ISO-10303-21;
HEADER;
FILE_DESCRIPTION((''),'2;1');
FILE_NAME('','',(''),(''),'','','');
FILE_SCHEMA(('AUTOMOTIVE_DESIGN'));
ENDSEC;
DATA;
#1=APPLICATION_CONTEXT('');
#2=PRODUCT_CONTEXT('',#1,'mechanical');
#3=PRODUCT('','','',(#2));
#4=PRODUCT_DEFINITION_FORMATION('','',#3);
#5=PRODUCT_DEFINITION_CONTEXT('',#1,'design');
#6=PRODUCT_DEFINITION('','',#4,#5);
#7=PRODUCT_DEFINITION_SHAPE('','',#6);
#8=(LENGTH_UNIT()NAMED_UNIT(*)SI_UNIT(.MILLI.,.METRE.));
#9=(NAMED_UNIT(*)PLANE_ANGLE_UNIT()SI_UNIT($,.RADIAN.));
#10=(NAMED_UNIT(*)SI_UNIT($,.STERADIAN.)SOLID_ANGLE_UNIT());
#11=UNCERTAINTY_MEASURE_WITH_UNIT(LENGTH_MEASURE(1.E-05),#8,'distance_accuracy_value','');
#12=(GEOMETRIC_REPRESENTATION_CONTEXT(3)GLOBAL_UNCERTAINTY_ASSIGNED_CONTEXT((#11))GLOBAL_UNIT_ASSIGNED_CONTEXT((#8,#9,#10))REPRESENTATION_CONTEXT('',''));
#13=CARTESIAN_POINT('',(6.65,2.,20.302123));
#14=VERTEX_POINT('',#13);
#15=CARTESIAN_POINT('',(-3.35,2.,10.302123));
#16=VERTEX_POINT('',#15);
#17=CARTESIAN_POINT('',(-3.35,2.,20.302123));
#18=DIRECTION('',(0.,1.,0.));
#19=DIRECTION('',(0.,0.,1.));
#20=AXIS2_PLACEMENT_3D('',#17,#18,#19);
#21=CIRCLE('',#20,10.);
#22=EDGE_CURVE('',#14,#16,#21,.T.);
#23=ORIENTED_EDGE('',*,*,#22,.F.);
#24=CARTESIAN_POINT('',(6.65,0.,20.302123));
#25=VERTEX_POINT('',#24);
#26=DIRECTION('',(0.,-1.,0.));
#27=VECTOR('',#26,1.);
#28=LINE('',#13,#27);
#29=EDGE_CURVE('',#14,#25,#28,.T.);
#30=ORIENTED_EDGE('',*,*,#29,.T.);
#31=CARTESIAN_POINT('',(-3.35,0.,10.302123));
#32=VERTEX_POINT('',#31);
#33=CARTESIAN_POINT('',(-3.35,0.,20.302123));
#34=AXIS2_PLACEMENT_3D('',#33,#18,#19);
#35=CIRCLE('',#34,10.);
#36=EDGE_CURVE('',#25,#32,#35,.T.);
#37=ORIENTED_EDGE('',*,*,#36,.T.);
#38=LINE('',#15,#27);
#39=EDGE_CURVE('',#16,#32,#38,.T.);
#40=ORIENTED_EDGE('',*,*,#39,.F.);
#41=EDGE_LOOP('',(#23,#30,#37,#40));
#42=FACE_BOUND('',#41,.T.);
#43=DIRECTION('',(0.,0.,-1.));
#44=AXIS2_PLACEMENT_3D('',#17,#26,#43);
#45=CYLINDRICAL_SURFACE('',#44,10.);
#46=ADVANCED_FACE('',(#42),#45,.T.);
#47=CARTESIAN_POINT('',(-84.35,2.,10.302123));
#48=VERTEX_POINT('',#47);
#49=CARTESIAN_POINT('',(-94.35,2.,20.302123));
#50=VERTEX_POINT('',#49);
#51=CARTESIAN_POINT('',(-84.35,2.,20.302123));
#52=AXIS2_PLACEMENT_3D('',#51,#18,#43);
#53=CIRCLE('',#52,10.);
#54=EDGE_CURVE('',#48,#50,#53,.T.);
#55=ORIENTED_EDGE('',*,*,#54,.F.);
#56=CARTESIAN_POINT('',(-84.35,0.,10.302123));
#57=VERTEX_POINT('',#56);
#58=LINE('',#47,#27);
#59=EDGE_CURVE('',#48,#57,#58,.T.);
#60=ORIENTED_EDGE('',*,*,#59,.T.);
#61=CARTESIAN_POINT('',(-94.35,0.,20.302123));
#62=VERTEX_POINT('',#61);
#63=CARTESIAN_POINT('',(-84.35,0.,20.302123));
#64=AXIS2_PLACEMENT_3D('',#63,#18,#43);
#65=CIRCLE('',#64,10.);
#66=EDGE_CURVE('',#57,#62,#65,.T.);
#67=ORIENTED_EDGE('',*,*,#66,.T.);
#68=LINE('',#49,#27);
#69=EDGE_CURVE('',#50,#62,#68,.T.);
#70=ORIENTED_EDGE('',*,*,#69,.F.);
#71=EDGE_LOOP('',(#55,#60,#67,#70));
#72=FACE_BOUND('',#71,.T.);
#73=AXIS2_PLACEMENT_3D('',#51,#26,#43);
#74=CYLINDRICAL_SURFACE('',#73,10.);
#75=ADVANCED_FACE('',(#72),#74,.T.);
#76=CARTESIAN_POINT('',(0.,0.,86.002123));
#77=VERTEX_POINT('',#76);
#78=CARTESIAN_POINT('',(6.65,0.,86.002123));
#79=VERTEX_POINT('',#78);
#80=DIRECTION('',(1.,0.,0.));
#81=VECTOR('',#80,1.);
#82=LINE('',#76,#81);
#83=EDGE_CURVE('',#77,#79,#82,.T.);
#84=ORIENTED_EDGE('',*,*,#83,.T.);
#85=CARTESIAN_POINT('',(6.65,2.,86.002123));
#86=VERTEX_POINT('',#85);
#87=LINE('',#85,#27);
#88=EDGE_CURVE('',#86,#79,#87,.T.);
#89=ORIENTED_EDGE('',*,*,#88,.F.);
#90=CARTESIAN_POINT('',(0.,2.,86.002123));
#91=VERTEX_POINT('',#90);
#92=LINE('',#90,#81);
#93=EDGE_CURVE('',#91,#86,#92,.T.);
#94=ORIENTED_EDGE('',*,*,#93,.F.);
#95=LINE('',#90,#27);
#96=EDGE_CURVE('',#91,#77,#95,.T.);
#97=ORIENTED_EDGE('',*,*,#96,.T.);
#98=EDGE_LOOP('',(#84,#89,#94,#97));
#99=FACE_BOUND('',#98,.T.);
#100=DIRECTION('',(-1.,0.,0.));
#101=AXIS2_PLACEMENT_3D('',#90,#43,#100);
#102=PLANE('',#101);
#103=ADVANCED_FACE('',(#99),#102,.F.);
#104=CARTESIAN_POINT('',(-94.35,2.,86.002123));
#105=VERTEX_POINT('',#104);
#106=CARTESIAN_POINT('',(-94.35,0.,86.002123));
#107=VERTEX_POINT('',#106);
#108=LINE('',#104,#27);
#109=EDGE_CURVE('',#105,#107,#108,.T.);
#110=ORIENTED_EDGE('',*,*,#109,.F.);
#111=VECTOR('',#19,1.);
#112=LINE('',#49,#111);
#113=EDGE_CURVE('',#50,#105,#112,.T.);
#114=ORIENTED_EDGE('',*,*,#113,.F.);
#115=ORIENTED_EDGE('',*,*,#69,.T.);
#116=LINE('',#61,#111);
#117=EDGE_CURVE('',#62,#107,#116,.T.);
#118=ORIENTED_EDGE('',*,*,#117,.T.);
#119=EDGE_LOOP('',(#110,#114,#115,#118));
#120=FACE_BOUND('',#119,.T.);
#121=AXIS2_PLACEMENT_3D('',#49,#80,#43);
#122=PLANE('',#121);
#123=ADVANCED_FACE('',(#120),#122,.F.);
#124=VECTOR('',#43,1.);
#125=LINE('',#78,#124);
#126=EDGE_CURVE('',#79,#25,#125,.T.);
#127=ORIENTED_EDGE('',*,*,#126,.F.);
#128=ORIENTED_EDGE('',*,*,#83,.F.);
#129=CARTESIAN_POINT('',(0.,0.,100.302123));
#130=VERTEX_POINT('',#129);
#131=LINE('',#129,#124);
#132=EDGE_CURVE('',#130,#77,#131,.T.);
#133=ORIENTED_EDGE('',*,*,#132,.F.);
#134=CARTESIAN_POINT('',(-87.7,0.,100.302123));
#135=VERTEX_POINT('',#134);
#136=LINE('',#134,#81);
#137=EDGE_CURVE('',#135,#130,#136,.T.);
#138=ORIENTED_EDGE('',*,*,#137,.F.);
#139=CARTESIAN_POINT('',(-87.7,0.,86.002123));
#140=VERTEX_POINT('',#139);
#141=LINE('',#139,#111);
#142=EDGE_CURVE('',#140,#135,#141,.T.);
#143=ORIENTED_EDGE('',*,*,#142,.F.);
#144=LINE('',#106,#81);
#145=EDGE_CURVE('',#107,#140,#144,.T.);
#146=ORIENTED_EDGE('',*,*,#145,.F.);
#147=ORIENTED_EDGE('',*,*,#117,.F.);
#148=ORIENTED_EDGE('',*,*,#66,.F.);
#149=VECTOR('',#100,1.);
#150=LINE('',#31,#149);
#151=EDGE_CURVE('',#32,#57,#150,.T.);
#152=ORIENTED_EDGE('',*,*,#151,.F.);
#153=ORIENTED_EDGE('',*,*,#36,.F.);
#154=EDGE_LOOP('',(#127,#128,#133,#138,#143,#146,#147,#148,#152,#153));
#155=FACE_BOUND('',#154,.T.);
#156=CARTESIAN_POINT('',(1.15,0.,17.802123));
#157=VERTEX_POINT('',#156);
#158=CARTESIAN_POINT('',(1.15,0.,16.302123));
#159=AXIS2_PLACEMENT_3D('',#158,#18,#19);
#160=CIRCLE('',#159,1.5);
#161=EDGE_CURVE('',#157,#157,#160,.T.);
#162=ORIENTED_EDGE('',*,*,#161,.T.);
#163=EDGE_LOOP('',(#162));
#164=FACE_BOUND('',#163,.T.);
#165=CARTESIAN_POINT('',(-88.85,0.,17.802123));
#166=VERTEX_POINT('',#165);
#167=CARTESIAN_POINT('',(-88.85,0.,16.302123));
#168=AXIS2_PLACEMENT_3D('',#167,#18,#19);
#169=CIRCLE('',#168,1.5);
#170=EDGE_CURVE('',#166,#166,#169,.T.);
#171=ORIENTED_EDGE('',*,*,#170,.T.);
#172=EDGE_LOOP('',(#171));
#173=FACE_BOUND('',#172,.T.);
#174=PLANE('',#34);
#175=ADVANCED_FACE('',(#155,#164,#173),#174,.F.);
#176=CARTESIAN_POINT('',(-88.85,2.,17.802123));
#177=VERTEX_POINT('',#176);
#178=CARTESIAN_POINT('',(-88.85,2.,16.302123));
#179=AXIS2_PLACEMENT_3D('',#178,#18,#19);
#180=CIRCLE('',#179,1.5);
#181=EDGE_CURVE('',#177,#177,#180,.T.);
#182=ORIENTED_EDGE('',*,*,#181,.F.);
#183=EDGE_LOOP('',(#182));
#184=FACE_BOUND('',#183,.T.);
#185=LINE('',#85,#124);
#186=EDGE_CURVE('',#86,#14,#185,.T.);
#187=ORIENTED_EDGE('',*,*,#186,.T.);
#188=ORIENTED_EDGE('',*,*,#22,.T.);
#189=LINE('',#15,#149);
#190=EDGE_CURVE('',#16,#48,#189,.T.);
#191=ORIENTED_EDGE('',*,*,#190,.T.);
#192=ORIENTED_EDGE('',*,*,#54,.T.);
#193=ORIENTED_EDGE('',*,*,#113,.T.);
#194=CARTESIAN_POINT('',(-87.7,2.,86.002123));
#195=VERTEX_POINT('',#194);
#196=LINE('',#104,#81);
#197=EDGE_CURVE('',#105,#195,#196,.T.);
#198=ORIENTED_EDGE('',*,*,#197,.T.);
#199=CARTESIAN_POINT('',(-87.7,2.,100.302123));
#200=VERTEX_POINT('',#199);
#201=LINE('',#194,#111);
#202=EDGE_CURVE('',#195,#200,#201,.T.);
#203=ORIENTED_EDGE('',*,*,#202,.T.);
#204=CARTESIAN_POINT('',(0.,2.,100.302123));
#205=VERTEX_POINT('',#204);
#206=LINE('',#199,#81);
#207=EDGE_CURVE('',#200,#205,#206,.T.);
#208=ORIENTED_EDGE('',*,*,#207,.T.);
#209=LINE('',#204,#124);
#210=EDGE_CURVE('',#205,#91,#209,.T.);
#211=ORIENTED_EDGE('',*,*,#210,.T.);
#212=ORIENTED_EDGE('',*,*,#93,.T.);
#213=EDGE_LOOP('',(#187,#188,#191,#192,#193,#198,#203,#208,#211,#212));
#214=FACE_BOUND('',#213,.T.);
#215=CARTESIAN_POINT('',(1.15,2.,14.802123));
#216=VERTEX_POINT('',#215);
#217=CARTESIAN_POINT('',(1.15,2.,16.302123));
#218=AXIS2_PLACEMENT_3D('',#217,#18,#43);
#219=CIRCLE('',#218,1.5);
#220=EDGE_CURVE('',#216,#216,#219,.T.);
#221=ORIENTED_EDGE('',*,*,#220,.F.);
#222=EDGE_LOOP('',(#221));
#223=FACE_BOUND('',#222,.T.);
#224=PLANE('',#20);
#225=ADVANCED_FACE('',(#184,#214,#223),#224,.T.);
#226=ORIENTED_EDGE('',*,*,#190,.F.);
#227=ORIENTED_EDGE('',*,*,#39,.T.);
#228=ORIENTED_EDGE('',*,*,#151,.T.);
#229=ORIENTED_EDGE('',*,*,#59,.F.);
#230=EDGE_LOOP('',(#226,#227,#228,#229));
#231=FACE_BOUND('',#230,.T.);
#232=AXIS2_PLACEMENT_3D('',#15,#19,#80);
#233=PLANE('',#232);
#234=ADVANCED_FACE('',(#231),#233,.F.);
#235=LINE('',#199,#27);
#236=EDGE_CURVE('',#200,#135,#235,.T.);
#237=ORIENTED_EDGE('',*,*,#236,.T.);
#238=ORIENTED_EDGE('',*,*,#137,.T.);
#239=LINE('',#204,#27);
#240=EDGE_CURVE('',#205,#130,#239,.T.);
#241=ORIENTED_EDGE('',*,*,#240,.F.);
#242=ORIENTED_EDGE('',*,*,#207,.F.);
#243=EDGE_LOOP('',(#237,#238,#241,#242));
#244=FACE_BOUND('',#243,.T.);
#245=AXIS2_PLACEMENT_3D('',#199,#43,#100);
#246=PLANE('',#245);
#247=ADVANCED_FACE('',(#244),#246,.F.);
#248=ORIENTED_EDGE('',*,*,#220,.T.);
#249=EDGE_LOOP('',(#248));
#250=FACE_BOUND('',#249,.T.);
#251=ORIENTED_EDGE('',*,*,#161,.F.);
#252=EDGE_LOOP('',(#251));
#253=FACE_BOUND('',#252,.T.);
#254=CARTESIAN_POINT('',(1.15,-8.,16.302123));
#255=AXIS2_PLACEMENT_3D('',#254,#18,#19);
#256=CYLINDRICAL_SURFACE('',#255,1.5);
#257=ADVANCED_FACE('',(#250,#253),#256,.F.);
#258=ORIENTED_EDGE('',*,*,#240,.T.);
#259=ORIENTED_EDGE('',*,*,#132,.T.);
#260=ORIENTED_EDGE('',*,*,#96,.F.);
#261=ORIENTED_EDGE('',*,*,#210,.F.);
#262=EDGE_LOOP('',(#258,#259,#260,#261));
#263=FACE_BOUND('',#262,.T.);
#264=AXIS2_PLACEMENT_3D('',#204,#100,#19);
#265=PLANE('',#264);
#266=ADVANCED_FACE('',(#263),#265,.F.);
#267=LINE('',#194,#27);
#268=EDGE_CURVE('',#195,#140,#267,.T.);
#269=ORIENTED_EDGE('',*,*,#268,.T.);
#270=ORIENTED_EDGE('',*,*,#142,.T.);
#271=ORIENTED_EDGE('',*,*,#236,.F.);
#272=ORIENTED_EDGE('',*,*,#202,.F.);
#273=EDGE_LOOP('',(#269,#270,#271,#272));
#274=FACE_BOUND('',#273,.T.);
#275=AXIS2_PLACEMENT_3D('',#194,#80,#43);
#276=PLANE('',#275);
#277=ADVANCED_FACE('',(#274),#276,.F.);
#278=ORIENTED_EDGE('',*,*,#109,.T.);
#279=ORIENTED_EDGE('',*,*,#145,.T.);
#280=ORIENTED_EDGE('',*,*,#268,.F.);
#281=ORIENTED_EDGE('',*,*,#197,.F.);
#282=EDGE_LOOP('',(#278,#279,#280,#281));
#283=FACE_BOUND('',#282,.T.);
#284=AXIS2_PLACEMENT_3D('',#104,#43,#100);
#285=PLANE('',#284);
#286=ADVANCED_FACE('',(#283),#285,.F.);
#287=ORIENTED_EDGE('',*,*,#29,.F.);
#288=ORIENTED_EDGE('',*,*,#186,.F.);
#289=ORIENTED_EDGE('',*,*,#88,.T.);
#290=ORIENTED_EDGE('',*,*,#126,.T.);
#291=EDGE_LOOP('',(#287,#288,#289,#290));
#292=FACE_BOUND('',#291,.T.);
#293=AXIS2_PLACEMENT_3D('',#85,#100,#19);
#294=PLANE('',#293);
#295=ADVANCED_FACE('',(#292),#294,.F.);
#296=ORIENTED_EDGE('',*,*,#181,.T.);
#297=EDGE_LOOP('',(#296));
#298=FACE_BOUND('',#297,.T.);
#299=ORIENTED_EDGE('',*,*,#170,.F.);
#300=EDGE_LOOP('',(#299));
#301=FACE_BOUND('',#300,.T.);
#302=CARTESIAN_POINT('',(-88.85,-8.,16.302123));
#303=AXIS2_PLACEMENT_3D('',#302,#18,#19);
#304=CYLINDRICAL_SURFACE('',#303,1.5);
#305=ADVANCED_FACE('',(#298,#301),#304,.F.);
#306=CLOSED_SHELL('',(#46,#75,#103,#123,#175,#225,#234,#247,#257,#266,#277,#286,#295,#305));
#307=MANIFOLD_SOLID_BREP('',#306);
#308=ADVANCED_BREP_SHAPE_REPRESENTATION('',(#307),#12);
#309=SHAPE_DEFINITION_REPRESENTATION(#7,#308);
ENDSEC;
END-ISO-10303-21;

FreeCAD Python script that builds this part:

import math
import FreeCAD as App
import Part
import Sketcher

doc = App.newDocument("Part")
body = doc.addObject("PartDesign::Body", "Body")

sketch1 = body.newObject("Sketcher::SketchObject", "Sketch")
sketch1.AttachmentSupport = (doc.getObject("XZ_Plane"), [""])
sketch1.MapMode = "FlatFace"
sketch1.addGeometry(Part.LineSegment(App.Vector(0, 100, 0), App.Vector(0, 86, 0)), False)
sketch1.addGeometry(Part.LineSegment(App.Vector(0, 86, 0), App.Vector(7, 86, 0)), False)
sketch1.addGeometry(Part.LineSegment(App.Vector(7, 86, 0), App.Vector(7, 20, 0)), False)
sketch1.addGeometry(Part.ArcOfCircle(Part.Circle(App.Vector(-3, 20, 0), App.Vector(0, 0, 1), 10), math.radians(-90), math.radians(0)), False)
sketch1.addGeometry(Part.LineSegment(App.Vector(-3, 10, 0), App.Vector(-84, 10, 0)), False)
sketch1.addGeometry(Part.ArcOfCircle(Part.Circle(App.Vector(-84, 20, 0), App.Vector(0, 0, 1), 10), math.radians(180), math.radians(270)), False)
sketch1.addGeometry(Part.LineSegment(App.Vector(-94, 20, 0), App.Vector(-94, 86, 0)), False)
sketch1.addGeometry(Part.LineSegment(App.Vector(-94, 86, 0), App.Vector(-88, 86, 0)), False)
sketch1.addGeometry(Part.LineSegment(App.Vector(-88, 86, 0), App.Vector(-88, 100, 0)), False)
sketch1.addGeometry(Part.LineSegment(App.Vector(-88, 100, 0), App.Vector(0, 100, 0)), False)
sketch1.addConstraint(Sketcher.Constraint("Coincident", 0, 2, 1, 1))
sketch1.addConstraint(Sketcher.Constraint("Coincident", 1, 2, 2, 1))
sketch1.addConstraint(Sketcher.Constraint("Tangent", 2, 2, 3, 2))
sketch1.addConstraint(Sketcher.Constraint("Tangent", 3, 1, 4, 1))
sketch1.addConstraint(Sketcher.Constraint("Tangent", 4, 2, 5, 2))
sketch1.addConstraint(Sketcher.Constraint("Tangent", 5, 1, 6, 1))
sketch1.addConstraint(Sketcher.Constraint("Coincident", 6, 2, 7, 1))
sketch1.addConstraint(Sketcher.Constraint("Coincident", 7, 2, 8, 1))
sketch1.addConstraint(Sketcher.Constraint("Coincident", 8, 2, 9, 1))
sketch1.addConstraint(Sketcher.Constraint("Coincident", 9, 2, 0, 1))
sketch1.addConstraint(Sketcher.Constraint("Vertical", 0))
sketch1.addConstraint(Sketcher.Constraint("Horizontal", 1))
sketch1.addConstraint(Sketcher.Constraint("Vertical", 2))
sketch1.addConstraint(Sketcher.Constraint("Horizontal", 4))
sketch1.addConstraint(Sketcher.Constraint("Vertical", 6))
sketch1.addConstraint(Sketcher.Constraint("Horizontal", 7))
sketch1.addConstraint(Sketcher.Constraint("Vertical", 8))
sketch1.addConstraint(Sketcher.Constraint("Horizontal", 9))
sketch1.addConstraint(Sketcher.Constraint("Equal", 3, 5))
sketch1.addConstraint(Sketcher.Constraint("PointOnObject", 0, 2, -2))
sketch1.addConstraint(Sketcher.Constraint("Horizontal", 1, 2, 6, 2))
sketch1.addConstraint(Sketcher.Constraint("Equal", 1, 7))
sketch1.addConstraint(Sketcher.Constraint("Radius", 3, 10.0))
sketch1.addConstraint(Sketcher.Constraint("DistanceX", 4, 2, 4, 1, 81.0))
sketch1.addConstraint(Sketcher.Constraint("DistanceX", 9, 1, 9, 2, 87.7))
sketch1.addConstraint(Sketcher.Constraint("DistanceY", 0, 2, 0, 1, 14.3))
sketch1.addConstraint(Sketcher.Constraint("DistanceY", 2, 2, 2, 1, 65.7))
sketch1.addConstraint(Sketcher.Constraint("DistanceY", -1, 1, 3, 3, 20.302123))
pad1 = body.newObject("PartDesign::Pad", "Pad")
pad1.Profile = sketch1
pad1.Length = 2
pad1.Reversed = True

sketch2 = body.newObject("Sketcher::SketchObject", "Sketch001")
sketch2.AttachmentSupport = (doc.getObject("XZ_Plane"), [""])
sketch2.MapMode = "FlatFace"
sketch2.AttachmentOffset = App.Placement(App.Vector(0, 0, -2), App.Rotation())
sketch2.addGeometry(Part.Circle(App.Vector(-88.8, 16.3, 0), App.Vector(0, 0, 1), 1.5), False)
sketch2.addGeometry(Part.Circle(App.Vector(1.1, 16.3, 0), App.Vector(0, 0, 1), 1.5), False)
sketch2.addConstraint(Sketcher.Constraint("Equal", 0, 1))
sketch2.addConstraint(Sketcher.Constraint("Horizontal", 0, 3, 1, 3))
sketch2.addConstraint(Sketcher.Constraint("Diameter", 0, 3.0))
sketch2.addConstraint(Sketcher.Constraint("DistanceX", 0, 3, 1, 3, 90.0))
sketch2.addConstraint(Sketcher.Constraint("DistanceX", 0, 3, -1, 1, 88.85))
sketch2.addConstraint(Sketcher.Constraint("DistanceY", -1, 1, 0, 3, 16.302123))
pocket1 = body.newObject("PartDesign::Pocket", "Pocket")
pocket1.Profile = sketch2
pocket1.Length = 10
pocket1.Reversed = True

doc.recompute()
